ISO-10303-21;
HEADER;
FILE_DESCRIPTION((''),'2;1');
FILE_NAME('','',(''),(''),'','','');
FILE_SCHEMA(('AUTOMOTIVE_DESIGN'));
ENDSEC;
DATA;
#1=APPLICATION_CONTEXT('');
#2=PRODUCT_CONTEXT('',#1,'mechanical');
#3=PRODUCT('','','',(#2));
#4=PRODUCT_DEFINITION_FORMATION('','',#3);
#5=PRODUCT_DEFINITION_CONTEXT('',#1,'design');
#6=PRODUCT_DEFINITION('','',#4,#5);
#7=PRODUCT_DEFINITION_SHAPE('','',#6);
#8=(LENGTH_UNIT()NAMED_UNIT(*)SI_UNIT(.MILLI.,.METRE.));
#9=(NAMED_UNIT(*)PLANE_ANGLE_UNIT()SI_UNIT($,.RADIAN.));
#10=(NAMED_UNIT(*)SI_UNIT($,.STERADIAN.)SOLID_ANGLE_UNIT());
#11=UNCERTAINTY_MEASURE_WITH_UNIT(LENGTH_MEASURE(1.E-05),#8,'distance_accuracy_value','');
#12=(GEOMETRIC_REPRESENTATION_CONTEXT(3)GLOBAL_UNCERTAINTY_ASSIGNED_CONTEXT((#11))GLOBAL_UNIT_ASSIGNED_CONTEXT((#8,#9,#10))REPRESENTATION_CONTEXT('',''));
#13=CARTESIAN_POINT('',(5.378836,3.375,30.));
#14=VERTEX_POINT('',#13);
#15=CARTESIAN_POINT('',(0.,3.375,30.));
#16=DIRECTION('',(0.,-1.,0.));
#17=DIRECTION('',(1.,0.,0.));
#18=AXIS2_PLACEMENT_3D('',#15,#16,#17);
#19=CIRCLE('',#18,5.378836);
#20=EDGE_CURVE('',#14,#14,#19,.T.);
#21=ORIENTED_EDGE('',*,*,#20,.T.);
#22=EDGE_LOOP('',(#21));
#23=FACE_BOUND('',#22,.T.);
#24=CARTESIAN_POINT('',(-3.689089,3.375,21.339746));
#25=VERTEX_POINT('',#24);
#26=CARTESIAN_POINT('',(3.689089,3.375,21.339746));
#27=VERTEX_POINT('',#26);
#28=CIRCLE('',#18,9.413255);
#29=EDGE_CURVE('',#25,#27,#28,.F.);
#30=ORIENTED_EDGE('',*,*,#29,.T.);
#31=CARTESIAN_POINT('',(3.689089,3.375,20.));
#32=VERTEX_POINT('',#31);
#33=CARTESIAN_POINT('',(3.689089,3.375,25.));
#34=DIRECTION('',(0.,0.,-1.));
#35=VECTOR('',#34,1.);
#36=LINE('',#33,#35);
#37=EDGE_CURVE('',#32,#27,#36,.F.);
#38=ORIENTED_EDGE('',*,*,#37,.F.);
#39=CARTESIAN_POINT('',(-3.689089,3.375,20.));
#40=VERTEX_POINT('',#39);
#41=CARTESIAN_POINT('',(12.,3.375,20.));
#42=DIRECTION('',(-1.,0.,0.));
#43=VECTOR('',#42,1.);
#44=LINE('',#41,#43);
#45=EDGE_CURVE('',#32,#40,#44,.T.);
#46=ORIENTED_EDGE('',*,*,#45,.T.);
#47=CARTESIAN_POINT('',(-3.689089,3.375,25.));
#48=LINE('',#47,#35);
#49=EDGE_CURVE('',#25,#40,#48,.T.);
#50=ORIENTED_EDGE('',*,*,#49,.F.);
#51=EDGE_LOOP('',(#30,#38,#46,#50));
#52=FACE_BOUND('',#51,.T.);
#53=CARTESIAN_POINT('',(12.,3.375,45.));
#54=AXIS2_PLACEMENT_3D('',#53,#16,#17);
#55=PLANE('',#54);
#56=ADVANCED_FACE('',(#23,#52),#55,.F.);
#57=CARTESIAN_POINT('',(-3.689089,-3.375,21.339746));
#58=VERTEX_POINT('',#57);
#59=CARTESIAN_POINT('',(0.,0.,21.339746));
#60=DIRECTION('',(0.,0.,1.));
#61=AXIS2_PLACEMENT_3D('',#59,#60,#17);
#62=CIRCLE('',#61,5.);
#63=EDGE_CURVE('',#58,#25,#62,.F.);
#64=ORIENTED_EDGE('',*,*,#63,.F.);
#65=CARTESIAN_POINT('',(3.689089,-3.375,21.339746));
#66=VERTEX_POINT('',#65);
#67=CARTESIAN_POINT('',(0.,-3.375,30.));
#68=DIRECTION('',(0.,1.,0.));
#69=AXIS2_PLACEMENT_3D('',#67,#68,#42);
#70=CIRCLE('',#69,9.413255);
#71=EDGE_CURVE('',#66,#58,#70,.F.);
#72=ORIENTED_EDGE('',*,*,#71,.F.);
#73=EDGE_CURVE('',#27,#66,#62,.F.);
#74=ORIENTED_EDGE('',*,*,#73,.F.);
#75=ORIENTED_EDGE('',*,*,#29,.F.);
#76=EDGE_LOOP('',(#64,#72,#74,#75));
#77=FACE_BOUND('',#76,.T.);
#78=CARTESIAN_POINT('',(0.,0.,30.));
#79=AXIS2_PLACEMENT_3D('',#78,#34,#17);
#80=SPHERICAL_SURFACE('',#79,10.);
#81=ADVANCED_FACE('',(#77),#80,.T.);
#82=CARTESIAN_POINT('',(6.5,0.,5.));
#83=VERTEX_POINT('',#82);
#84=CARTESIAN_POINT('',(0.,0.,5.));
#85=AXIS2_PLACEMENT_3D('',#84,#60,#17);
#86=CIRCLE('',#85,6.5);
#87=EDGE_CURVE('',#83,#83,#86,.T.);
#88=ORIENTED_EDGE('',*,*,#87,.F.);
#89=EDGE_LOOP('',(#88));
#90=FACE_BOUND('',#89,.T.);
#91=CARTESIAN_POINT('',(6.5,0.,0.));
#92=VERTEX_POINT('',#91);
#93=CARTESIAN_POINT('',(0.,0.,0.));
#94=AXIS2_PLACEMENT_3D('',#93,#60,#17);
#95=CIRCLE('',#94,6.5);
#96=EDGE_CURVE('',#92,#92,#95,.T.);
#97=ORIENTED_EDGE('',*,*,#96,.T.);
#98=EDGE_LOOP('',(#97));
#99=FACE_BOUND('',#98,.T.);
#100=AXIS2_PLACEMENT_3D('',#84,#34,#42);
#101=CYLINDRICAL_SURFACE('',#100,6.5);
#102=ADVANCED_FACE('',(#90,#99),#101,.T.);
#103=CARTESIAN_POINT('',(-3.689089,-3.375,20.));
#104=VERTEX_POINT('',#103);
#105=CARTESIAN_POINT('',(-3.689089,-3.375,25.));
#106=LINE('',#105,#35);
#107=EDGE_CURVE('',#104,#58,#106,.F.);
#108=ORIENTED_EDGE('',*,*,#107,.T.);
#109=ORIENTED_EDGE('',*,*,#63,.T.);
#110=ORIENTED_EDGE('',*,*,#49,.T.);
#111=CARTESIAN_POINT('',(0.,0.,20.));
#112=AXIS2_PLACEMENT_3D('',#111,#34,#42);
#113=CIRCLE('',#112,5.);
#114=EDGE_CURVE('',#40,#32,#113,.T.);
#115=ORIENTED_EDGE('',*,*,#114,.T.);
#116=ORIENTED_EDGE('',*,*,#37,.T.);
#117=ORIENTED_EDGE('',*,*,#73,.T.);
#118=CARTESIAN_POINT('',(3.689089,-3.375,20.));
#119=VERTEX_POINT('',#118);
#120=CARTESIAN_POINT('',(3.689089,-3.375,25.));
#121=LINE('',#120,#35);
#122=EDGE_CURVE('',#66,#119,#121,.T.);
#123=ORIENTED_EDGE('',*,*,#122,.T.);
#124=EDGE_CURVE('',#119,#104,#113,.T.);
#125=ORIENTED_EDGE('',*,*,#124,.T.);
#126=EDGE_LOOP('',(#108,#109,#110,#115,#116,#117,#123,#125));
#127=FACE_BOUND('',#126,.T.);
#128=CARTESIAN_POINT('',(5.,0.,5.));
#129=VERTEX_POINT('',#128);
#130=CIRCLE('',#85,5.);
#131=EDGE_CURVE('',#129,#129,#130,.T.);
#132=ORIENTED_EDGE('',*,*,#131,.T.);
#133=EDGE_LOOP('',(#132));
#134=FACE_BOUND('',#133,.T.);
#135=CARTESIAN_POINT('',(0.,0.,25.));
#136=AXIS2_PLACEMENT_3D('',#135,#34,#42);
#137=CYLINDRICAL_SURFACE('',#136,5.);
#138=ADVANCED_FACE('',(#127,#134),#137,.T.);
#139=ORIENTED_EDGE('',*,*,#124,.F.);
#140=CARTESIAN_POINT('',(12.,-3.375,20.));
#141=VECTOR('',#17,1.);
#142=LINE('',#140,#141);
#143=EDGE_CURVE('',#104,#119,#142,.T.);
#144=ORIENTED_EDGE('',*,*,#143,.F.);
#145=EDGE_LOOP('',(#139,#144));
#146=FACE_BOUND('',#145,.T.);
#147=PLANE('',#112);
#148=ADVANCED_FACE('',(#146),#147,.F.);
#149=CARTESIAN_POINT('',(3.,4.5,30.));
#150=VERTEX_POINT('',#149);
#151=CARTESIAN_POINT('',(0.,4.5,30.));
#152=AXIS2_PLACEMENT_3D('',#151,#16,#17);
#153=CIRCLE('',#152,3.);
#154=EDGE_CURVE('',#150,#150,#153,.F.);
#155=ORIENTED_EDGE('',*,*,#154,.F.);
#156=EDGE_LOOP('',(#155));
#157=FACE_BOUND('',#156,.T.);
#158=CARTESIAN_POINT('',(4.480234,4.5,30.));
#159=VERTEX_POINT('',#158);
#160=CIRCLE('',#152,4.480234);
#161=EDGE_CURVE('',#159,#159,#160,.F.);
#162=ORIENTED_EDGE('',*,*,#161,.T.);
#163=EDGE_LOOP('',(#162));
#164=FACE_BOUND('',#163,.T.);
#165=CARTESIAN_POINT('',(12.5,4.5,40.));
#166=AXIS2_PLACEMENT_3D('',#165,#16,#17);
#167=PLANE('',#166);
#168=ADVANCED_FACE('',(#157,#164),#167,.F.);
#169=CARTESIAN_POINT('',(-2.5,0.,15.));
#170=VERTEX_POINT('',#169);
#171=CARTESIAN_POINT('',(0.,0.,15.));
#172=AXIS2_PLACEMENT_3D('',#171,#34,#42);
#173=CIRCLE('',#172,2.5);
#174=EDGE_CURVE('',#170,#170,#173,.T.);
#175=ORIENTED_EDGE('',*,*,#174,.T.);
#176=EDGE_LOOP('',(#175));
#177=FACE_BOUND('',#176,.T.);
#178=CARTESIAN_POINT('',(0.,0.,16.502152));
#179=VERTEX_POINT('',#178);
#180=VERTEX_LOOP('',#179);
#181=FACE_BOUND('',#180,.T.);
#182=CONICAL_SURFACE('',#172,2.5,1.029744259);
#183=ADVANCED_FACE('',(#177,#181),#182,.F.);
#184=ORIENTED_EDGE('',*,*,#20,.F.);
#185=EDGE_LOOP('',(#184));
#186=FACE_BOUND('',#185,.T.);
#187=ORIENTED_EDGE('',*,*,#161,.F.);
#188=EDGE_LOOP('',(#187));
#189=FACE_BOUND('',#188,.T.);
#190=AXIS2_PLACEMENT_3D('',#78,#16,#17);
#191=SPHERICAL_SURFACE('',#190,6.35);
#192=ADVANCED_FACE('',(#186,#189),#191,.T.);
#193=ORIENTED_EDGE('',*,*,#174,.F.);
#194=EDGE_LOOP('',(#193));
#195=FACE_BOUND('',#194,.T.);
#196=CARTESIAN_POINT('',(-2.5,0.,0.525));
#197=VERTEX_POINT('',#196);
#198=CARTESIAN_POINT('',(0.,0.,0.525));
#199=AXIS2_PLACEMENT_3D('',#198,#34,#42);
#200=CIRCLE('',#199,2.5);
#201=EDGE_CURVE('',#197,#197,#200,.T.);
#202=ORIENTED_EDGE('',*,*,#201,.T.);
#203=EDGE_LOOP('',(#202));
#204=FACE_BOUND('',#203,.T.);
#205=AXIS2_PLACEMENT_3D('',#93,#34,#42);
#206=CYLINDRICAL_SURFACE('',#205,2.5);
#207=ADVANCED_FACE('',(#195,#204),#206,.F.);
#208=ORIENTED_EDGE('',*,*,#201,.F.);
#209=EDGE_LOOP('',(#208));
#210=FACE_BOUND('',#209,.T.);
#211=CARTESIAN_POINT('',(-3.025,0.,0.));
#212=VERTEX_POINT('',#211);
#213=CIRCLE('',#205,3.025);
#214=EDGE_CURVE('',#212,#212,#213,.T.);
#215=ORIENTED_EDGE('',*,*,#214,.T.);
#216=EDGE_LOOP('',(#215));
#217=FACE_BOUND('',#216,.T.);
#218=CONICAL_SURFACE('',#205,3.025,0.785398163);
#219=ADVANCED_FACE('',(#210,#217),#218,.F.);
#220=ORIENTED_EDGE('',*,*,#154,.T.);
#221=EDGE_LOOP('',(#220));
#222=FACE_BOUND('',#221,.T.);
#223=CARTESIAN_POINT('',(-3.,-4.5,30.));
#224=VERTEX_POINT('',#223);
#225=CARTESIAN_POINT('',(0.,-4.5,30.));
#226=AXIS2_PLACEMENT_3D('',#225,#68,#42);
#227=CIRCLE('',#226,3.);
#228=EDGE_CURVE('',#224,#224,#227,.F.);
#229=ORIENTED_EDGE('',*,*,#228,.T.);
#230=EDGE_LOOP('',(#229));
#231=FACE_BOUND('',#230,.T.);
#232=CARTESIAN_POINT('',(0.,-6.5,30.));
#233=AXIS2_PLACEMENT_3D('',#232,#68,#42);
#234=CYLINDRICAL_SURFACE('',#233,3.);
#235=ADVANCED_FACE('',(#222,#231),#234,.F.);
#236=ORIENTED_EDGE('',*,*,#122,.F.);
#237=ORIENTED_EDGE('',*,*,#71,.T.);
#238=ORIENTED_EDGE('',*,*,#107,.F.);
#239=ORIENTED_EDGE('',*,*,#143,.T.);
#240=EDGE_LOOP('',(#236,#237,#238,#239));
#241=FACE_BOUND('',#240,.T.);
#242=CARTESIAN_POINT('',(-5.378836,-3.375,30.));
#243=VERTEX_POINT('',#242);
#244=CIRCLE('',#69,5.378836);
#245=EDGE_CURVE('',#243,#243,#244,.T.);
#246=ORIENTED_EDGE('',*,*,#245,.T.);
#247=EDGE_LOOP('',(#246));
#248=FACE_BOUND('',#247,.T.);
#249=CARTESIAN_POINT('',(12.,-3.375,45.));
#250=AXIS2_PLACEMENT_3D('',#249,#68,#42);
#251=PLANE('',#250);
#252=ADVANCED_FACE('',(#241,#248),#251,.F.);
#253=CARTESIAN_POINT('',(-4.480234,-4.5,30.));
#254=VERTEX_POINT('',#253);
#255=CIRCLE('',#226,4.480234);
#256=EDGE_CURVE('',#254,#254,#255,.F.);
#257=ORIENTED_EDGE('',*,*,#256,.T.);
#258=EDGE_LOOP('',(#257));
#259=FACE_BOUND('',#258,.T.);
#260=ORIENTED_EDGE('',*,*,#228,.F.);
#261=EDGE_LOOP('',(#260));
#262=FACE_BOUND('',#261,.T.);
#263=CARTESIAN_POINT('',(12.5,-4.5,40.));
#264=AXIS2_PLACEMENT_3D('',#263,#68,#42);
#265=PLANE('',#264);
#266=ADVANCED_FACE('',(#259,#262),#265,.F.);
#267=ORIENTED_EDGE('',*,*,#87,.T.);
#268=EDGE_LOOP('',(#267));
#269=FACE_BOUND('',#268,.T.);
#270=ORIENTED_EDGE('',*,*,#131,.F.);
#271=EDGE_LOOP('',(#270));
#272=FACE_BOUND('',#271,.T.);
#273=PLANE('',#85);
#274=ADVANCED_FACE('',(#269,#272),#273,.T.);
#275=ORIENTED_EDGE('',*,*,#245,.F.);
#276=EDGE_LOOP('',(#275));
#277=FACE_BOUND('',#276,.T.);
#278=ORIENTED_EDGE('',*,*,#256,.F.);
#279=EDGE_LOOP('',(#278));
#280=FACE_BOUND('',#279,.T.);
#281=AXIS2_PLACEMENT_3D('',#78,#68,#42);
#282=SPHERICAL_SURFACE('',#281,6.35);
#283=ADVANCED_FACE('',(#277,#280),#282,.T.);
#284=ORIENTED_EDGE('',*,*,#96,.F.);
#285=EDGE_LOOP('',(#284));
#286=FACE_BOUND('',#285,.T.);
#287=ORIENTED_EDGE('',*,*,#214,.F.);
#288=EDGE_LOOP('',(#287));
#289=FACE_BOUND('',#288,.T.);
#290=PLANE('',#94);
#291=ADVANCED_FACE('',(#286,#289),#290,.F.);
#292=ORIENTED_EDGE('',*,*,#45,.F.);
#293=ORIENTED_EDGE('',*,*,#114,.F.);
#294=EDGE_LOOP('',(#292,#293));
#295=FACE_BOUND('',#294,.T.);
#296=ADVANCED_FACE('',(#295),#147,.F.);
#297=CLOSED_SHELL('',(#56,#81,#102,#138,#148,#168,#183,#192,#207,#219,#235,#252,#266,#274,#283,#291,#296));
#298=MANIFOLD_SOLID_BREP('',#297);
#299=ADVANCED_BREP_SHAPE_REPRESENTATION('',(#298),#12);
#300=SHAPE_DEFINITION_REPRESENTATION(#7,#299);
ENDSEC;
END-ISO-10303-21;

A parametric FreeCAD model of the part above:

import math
import FreeCAD as App
import Part
import Sketcher

V = App.Vector

doc = App.newDocument("Part")
body = doc.addObject("PartDesign::Body", "Body")

# Sketch on XY plane
sketch1 = body.newObject("Sketcher::SketchObject", "Sketch")
sketch1.AttachmentSupport = (doc.getObject("XY_Plane"), [""])
sketch1.MapMode = "FlatFace"
sketch1.addGeometry(Part.Circle(V(0, 0, 0), V(0, 0, 1), 6), False)
sketch1.addConstraint(Sketcher.Constraint("Coincident", 0, 3, -1, 1))
sketch1.addConstraint(Sketcher.Constraint("Diameter", 0, 13.0))
pad1 = body.newObject("PartDesign::Pad", "Pad")
pad1.Profile = sketch1
pad1.Length = 5

# Sketch on XY plane
sketch2 = body.newObject("Sketcher::SketchObject", "Sketch001")
sketch2.AttachmentSupport = (doc.getObject("XY_Plane"), [""])
sketch2.MapMode = "FlatFace"
sketch2.AttachmentOffset = App.Placement(V(0, 0, 5), App.Rotation())
sketch2.addGeometry(Part.Circle(V(0, 0, 0), V(0, 0, 1), 5), False)
sketch2.addConstraint(Sketcher.Constraint("Coincident", 0, 3, -1, 1))
sketch2.addConstraint(Sketcher.Constraint("Diameter", 0, 10.0))
pad2 = body.newObject("PartDesign::Pad", "Pad001")
pad2.Profile = sketch2
pad2.Length = 20

# Sketch on XZ plane
sketch3 = body.newObject("Sketcher::SketchObject", "Sketch002")
sketch3.AttachmentSupport = (doc.getObject("XZ_Plane"), [""])
sketch3.MapMode = "FlatFace"
sketch3.addGeometry(Part.LineSegment(V(0, 40, 0), V(0, 20, 0)), False)
sketch3.addGeometry(Part.ArcOfCircle(Part.Circle(V(0, 30, 0), V(0, 0, 1), 10), math.radians(90), math.radians(270)), False)
sketch3.addConstraint(Sketcher.Constraint("Coincident", 0, 1, 1, 1))
sketch3.addConstraint(Sketcher.Constraint("Coincident", 1, 2, 0, 2))
sketch3.addConstraint(Sketcher.Constraint("Vertical", 0))
sketch3.addConstraint(Sketcher.Constraint("PointOnObject", 1, 3, -2))
sketch3.addConstraint(Sketcher.Constraint("PointOnObject", 0, 1, -2))
sketch3.addConstraint(Sketcher.Constraint("Radius", 1, 10.0))
sketch3.addConstraint(Sketcher.Constraint("DistanceY", -1, 1, 1, 3, 30.0))
revolution = body.newObject("PartDesign::Revolution", "Revolution")
revolution.Profile = sketch3
revolution.ReferenceAxis = (sketch3, ["V_Axis"])
revolution.Angle = 360

# Sketch on XY plane
sketch4 = body.newObject("Sketcher::SketchObject", "Sketch003")
sketch4.AttachmentSupport = (doc.getObject("XY_Plane"), [""])
sketch4.MapMode = "FlatFace"
sketch4.AttachmentOffset = App.Placement(V(0, 0, 20), App.Rotation())
sketch4.addGeometry(Part.LineSegment(V(-12, 12, 0), V(-12, -12, 0)), False)
sketch4.addGeometry(Part.LineSegment(V(-12, -12, 0), V(12, -12, 0)), False)
sketch4.addGeometry(Part.LineSegment(V(12, -12, 0), V(12, 12, 0)), False)
sketch4.addGeometry(Part.LineSegment(V(12, 12, 0), V(-12, 12, 0)), False)
sketch4.addGeometry(Part.LineSegment(V(12, -3, 0), V(-12, -3, 0)), False)
sketch4.addGeometry(Part.LineSegment(V(-12, -3, 0), V(-12, 3, 0)), False)
sketch4.addGeometry(Part.LineSegment(V(-12, 3, 0), V(12, 3, 0)), False)
sketch4.addGeometry(Part.LineSegment(V(12, 3, 0), V(12, -3, 0)), False)
sketch4.addConstraint(Sketcher.Constraint("Coincident", 0, 2, 1, 1))
sketch4.addConstraint(Sketcher.Constraint("Coincident", 1, 2, 2, 1))
sketch4.addConstraint(Sketcher.Constraint("Coincident", 2, 2, 3, 1))
sketch4.addConstraint(Sketcher.Constraint("Coincident", 3, 2, 0, 1))
sketch4.addConstraint(Sketcher.Constraint("Coincident", 4, 2, 5, 1))
sketch4.addConstraint(Sketcher.Constraint("Coincident", 5, 2, 6, 1))
sketch4.addConstraint(Sketcher.Constraint("Coincident", 6, 2, 7, 1))
sketch4.addConstraint(Sketcher.Constraint("Coincident", 7, 2, 4, 1))
sketch4.addConstraint(Sketcher.Constraint("Vertical", 0))
sketch4.addConstraint(Sketcher.Constraint("Horizontal", 1))
sketch4.addConstraint(Sketcher.Constraint("Vertical", 2))
sketch4.addConstraint(Sketcher.Constraint("Horizontal", 3))
sketch4.addConstraint(Sketcher.Constraint("Horizontal", 4))
sketch4.addConstraint(Sketcher.Constraint("Vertical", 5))
sketch4.addConstraint(Sketcher.Constraint("Horizontal", 6))
sketch4.addConstraint(Sketcher.Constraint("Vertical", 7))
sketch4.addConstraint(Sketcher.Constraint("Symmetric", 0, 2, 2, 2, -1, 1))
sketch4.addConstraint(Sketcher.Constraint("Symmetric", 4, 2, 6, 2, -1, 1))
sketch4.addConstraint(Sketcher.Constraint("Equal", 3, 0))
sketch4.addConstraint(Sketcher.Constraint("DistanceX", 1, 1, 1, 2, 25.0))
sketch4.addConstraint(Sketcher.Constraint("DistanceX", 4, 2, 4, 1, 24.0))
sketch4.addConstraint(Sketcher.Constraint("DistanceY", 5, 1, 5, 2, 6.75))
pocket1 = body.newObject("PartDesign::Pocket", "Pocket")
pocket1.Profile = sketch4
pocket1.Length = 25
pocket1.Reversed = True

# Sketch on XZ plane
sketch5 = body.newObject("Sketcher::SketchObject", "Sketch004")
sketch5.AttachmentSupport = (doc.getObject("XZ_Plane"), [""])
sketch5.MapMode = "FlatFace"
sketch5.addGeometry(Part.LineSegment(V(6, 30, 0), V(-6, 30, 0)), False)
sketch5.addGeometry(Part.ArcOfCircle(Part.Circle(V(0, 30, 0), V(0, 0, 1), 6), math.radians(0), math.radians(180)), False)
sketch5.addGeometry(Part.LineSegment(V(-6, 30, 0), V(6, 30, 0)), True)  # axis
sketch5.addConstraint(Sketcher.Constraint("Coincident", 0, 1, 1, 1))
sketch5.addConstraint(Sketcher.Constraint("Coincident", 1, 2, 0, 2))
sketch5.addConstraint(Sketcher.Constraint("Horizontal", 0))
sketch5.addConstraint(Sketcher.Constraint("Horizontal", 2))
sketch5.addConstraint(Sketcher.Constraint("Coincident", 2, 1, 1, 2))
sketch5.addConstraint(Sketcher.Constraint("PointOnObject", 1, 3, -2))
sketch5.addConstraint(Sketcher.Constraint("Horizontal", 1, 3, 0, 1))
sketch5.addConstraint(Sketcher.Constraint("Equal", 0, 2))
sketch5.addConstraint(Sketcher.Constraint("Radius", 1, 6.35))
sketch5.addConstraint(Sketcher.Constraint("DistanceY", -1, 1, 1, 3, 30.0))
revolution2 = body.newObject("PartDesign::Revolution", "Revolution001")
revolution2.Profile = sketch5
revolution2.ReferenceAxis = (sketch5, ["Axis0"])
revolution2.Angle = 360

# Sketch on XZ plane
sketch6 = body.newObject("Sketcher::SketchObject", "Sketch005")
sketch6.AttachmentSupport = (doc.getObject("XZ_Plane"), [""])
sketch6.MapMode = "FlatFace"
sketch6.addGeometry(Part.Circle(V(0, 30, 0), V(0, 0, 1), 3), False)
sketch6.addConstraint(Sketcher.Constraint("PointOnObject", 0, 3, -2))
sketch6.addConstraint(Sketcher.Constraint("Diameter", 0, 6.0))
sketch6.addConstraint(Sketcher.Constraint("DistanceY", -1, 1, 0, 3, 30.0))
pocket2 = body.newObject("PartDesign::Pocket", "Pocket001")
pocket2.Profile = sketch6
pocket2.Type = "ThroughAll"
pocket2.Midplane = True

# Sketch on XY plane
sketch7 = body.newObject("Sketcher::SketchObject", "Sketch006")
sketch7.AttachmentSupport = (doc.getObject("XY_Plane"), [""])
sketch7.MapMode = "FlatFace"
sketch7.addGeometry(Part.Circle(V(0, 0, 0), V(0, 0, 1), 2.5), False)
sketch7.addConstraint(Sketcher.Constraint("Coincident", 0, 3, -1, 1))
sketch7.addConstraint(Sketcher.Constraint("Diameter", 0, 5.0))
doc.recompute()
hole = body.newObject("PartDesign::Hole", "Hole")
hole.Profile = sketch7
hole.ThreadType = "None"
hole.Diameter = 5
hole.DepthType = "Dimension"
hole.Depth = 15
hole.DrillPoint = "Angled"
hole.DrillPointAngle = 118
hole.HoleCutType = "Countersink"
hole.HoleCutDiameter = 6.05
hole.HoleCutCountersinkAngle = 90
hole.Reversed = True

# Sketch on XY plane
sketch8 = body.newObject("Sketcher::SketchObject", "Sketch007")
sketch8.AttachmentSupport = (doc.getObject("XY_Plane"), [""])
sketch8.MapMode = "FlatFace"
sketch8.AttachmentOffset = App.Placement(V(0, 0, 20), App.Rotation())
sketch8.addGeometry(Part.Circle(V(0, 0, 0), V(0, 0, 1), 20), False)
sketch8.addGeometry(Part.LineSegment(V(12, -4, 0), V(-12, -4, 0)), False)
sketch8.addGeometry(Part.LineSegment(V(-12, -4, 0), V(-12, 4, 0)), False)
sketch8.addGeometry(Part.LineSegment(V(-12, 4, 0), V(12, 4, 0)), False)
sketch8.addGeometry(Part.LineSegment(V(12, 4, 0), V(12, -4, 0)), False)
sketch8.addConstraint(Sketcher.Constraint("Coincident", 1, 2, 2, 1))
sketch8.addConstraint(Sketcher.Constraint("Coincident", 2, 2, 3, 1))
sketch8.addConstraint(Sketcher.Constraint("Coincident", 3, 2, 4, 1))
sketch8.addConstraint(Sketcher.Constraint("Coincident", 4, 2, 1, 1))
sketch8.addConstraint(Sketcher.Constraint("Horizontal", 1))
sketch8.addConstraint(Sketcher.Constraint("Vertical", 2))
sketch8.addConstraint(Sketcher.Constraint("Horizontal", 3))
sketch8.addConstraint(Sketcher.Constraint("Vertical", 4))
sketch8.addConstraint(Sketcher.Constraint("Coincident", 0, 3, -1, 1))
sketch8.addConstraint(Sketcher.Constraint("Symmetric", 1, 2, 3, 2, -1, 1))
sketch8.addConstraint(Sketcher.Constraint("Diameter", 0, 40.0))
sketch8.addConstraint(Sketcher.Constraint("DistanceX", 1, 2, 1, 1, 25.0))
sketch8.addConstraint(Sketcher.Constraint("DistanceY", 2, 1, 2, 2, 9.0))
pocket3 = body.newObject("PartDesign::Pocket", "Pocket002")
pocket3.Profile = sketch8
pocket3.Type = "ThroughAll"
pocket3.Reversed = True

doc.recompute()
